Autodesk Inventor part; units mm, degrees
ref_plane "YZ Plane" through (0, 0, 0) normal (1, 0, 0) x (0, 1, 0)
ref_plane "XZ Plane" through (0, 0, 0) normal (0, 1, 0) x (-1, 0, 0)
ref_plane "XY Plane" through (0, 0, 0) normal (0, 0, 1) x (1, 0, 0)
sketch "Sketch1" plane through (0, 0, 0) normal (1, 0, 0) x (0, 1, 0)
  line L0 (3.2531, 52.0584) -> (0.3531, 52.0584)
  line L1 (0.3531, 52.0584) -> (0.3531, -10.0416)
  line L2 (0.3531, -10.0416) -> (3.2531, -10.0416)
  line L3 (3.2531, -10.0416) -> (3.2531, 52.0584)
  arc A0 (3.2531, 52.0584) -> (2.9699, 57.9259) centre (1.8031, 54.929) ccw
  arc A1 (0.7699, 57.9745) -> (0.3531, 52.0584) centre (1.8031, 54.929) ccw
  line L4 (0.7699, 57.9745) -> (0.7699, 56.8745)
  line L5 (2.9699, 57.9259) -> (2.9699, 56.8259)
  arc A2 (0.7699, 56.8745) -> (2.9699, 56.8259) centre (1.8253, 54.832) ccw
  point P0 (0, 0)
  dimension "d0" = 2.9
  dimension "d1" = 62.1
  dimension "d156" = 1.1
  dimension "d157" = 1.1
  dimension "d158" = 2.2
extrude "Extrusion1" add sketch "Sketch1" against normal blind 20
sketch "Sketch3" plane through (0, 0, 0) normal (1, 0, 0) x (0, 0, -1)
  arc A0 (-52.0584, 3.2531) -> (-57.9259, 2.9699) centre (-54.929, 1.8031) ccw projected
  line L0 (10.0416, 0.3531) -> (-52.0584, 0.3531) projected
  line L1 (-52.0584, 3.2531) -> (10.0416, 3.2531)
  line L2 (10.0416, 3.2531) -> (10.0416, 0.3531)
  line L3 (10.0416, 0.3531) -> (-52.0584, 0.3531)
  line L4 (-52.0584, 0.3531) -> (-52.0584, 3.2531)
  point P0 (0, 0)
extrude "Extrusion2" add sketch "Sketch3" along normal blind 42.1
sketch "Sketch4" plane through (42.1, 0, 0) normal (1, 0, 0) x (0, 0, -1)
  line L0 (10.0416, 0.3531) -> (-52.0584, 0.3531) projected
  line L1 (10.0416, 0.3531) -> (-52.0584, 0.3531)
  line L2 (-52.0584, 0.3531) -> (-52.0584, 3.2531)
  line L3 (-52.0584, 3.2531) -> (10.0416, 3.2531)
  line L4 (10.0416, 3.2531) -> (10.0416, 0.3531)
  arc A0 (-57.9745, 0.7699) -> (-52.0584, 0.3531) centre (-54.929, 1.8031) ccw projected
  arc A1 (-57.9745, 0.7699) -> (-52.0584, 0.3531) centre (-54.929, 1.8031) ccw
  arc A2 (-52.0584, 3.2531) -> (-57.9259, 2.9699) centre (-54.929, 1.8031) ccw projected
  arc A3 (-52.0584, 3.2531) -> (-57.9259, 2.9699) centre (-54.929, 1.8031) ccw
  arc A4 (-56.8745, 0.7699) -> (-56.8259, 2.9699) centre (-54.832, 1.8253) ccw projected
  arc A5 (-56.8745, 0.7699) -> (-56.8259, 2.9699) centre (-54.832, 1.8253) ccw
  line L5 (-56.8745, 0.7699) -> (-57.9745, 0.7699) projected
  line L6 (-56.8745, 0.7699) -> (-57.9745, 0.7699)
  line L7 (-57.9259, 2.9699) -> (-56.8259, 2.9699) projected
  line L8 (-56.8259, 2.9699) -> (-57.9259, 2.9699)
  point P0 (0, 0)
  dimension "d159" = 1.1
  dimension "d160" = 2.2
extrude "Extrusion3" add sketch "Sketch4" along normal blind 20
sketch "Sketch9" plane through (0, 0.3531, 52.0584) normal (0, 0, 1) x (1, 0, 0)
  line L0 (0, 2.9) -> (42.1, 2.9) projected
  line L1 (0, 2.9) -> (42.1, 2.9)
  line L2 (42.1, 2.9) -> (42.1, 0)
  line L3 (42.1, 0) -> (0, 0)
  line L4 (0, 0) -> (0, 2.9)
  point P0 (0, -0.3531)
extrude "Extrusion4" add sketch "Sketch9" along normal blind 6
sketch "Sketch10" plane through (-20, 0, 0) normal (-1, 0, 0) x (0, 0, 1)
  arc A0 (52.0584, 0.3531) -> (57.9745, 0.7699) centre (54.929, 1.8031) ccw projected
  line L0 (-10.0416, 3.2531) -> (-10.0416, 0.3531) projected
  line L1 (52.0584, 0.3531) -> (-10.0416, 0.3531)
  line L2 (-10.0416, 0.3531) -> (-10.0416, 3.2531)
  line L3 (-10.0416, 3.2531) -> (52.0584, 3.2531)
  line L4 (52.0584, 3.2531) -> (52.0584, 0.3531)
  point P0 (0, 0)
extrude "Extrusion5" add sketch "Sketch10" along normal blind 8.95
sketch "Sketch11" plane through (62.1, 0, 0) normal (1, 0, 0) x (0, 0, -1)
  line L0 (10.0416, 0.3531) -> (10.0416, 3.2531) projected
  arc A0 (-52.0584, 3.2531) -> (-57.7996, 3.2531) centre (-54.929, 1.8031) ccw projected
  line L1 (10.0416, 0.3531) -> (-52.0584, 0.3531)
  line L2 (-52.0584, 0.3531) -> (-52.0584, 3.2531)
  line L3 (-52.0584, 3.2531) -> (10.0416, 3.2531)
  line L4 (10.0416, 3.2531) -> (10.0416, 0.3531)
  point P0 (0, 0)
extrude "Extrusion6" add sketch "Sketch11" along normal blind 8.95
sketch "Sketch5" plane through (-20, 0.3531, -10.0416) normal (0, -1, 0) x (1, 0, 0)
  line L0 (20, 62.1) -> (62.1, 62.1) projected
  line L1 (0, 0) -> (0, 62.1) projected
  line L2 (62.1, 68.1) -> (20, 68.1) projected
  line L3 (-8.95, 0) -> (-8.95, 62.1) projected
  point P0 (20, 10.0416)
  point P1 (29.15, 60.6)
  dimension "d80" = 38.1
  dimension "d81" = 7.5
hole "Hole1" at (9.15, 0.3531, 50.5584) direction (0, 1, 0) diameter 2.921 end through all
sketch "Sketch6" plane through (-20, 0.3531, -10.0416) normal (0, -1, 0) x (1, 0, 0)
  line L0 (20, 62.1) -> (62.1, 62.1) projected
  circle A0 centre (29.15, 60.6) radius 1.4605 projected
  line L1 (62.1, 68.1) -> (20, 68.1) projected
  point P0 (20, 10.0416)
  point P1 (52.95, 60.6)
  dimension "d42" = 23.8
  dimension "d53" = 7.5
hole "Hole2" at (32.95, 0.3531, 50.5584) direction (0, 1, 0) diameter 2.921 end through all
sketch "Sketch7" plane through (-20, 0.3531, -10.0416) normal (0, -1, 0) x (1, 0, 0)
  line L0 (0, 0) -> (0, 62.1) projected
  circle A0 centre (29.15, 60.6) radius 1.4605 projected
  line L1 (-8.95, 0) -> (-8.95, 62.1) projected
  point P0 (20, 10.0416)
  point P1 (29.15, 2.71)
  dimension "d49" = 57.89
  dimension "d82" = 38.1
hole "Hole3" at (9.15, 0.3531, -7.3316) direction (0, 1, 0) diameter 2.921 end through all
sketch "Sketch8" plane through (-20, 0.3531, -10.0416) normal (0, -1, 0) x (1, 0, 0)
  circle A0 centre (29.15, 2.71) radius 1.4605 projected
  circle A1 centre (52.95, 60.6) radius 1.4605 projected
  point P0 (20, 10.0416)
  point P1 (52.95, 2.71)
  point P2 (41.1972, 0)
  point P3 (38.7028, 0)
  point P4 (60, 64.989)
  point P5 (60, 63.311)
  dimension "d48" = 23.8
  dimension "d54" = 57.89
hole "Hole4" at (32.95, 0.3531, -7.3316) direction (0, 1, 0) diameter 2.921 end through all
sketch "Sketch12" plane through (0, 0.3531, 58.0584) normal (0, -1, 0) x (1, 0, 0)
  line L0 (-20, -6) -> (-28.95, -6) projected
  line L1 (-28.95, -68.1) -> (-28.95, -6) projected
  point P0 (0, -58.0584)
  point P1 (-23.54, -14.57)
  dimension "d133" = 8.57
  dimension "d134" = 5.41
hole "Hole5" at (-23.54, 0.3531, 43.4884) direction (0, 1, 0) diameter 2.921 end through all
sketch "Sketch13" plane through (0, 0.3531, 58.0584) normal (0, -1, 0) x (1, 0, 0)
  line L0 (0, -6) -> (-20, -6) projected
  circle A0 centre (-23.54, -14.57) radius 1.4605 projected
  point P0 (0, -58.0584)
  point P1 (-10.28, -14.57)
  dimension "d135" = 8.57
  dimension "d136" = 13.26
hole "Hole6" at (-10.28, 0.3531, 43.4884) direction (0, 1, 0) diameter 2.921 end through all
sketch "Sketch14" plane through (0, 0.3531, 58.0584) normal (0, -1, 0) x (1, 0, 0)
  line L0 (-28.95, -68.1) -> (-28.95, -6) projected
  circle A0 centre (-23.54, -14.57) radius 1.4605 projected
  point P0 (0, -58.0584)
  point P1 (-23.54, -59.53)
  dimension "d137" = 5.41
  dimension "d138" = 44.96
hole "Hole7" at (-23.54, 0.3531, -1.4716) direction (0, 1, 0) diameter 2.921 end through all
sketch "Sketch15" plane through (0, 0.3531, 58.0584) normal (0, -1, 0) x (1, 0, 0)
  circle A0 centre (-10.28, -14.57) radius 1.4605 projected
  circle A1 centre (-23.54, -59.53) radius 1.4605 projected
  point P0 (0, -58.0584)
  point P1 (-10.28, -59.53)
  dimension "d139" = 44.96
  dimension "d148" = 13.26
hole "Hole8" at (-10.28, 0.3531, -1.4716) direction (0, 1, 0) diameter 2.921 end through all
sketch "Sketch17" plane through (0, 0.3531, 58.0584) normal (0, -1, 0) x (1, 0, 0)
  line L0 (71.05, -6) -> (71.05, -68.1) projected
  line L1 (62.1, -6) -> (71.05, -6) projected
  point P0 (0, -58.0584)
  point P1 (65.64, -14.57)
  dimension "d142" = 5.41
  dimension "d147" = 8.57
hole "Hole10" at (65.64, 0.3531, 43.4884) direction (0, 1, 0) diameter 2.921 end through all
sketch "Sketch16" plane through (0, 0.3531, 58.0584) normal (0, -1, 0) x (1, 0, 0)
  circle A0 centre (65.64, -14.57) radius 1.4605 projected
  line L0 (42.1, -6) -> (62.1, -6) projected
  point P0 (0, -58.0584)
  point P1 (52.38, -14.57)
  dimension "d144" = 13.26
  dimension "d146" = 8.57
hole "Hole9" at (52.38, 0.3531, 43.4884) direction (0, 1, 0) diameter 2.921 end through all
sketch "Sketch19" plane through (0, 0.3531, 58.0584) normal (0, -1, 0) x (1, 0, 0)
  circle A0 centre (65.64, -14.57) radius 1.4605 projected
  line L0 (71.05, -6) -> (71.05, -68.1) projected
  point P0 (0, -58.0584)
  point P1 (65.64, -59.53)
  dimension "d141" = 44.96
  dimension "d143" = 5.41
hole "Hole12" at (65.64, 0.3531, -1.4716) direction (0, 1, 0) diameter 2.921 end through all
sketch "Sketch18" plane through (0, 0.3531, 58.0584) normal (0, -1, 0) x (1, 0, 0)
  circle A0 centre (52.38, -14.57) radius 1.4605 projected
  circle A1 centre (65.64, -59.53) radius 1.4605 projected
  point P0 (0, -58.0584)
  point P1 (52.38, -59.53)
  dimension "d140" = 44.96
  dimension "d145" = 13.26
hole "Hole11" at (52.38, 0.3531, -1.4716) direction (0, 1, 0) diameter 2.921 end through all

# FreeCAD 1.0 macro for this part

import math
import FreeCAD as App
import Part
import Sketcher
from FreeCAD import Vector
Q = App.Units.Quantity


def add_polygon(sketch, points):
    """Adds a closed chain of lines whose ends are joined by coincident constraints."""
    first, n = sketch.GeometryCount, len(points)
    for a, b in zip(points, points[1:] + points[:1]):
        sketch.addGeometry(Part.LineSegment(App.Vector(*a, 0), App.Vector(*b, 0)), False)
    for i in range(n):
        sketch.addConstraint(Sketcher.Constraint("Coincident", first + i, 2, first + (i + 1) % n, 1))

doc = App.newDocument("Part")
params = doc.addObject("Spreadsheet::Sheet", "Params")
for row, (alias, value) in enumerate([
    ("sketch1_width", "2.9 mm"),
    ("sketch1_height", "62.1 mm"),
    ("sketch1_height2", "1.1 mm"),
    ("pad1_length", "20 mm"),
    ("sketch2_width", "2.9 mm"),
    ("sketch2_height", "62.1 mm"),
    ("pad2_length", "42.1 mm"),
    ("sketch3_height", "1.1 mm"),
    ("sketch3_width", "2.9 mm"),
    ("sketch3_height2", "62.1 mm"),
    ("pad3_length", "20 mm"),
    ("sketch4_width", "42.1 mm"),
    ("sketch4_height", "2.9 mm"),
    ("pad4_length", "6 mm"),
    ("sketch5_width", "2.9 mm"),
    ("sketch5_height", "62.1 mm"),
    ("pad5_length", "8.95 mm"),
    ("sketch6_width", "2.9 mm"),
    ("sketch6_height", "62.1 mm"),
    ("pad6_length", "8.95 mm"),
    ("hole_diameter", "2.921 mm"),
    ("hole2_diameter", "2.921 mm"),
    ("hole3_diameter", "2.921 mm"),
    ("hole4_diameter", "2.921 mm"),
    ("hole5_diameter", "2.921 mm"),
    ("hole6_diameter", "2.921 mm"),
    ("hole7_diameter", "2.921 mm"),
    ("hole8_diameter", "2.921 mm"),
    ("hole9_diameter", "2.921 mm"),
    ("hole10_diameter", "2.921 mm"),
    ("hole11_diameter", "2.921 mm"),
    ("hole12_diameter", "2.921 mm"),
], start=1):
    params.set(f"A{row}", alias)
    params.set(f"B{row}", "=" + value)
    params.setAlias(f"B{row}", alias)

body = doc.addObject("PartDesign::Body", "Body")

# Sketch on YZ plane
sketch1 = doc.addObject("Sketcher::SketchObject", "Sketch")
body.addObject(sketch1)
sketch1.AttachmentSupport = (doc.YZ_Plane, [""])
sketch1.MapMode = "FlatFace"
sketch1.addGeometry(Part.LineSegment(Vector(3.2531, -10.0416, 0), Vector(3.2531, 52.0584, 0)), False)
sketch1.addGeometry(Part.ArcOfCircle(Part.Circle(Vector(1.8031, 54.929, 0), Vector(0, 0, 1), 3.216029), math.radians(-63.200706), math.radians(68.727263)), False)
sketch1.addGeometry(Part.LineSegment(Vector(2.9699, 57.9259, 0), Vector(2.9699, 56.8259, 0)), False)
sketch1.addGeometry(Part.ArcOfCircle(Part.Circle(Vector(1.8253, 54.832, 0), Vector(0, 0, 1), 2.29906), math.radians(117.32629), math.radians(420.141984)), False)
sketch1.addGeometry(Part.LineSegment(Vector(0.7699, 56.8745, 0), Vector(0.7699, 57.9745, 0)), False)
sketch1.addGeometry(Part.ArcOfCircle(Part.Circle(Vector(1.8031, 54.929, 0), Vector(0, 0, 1), 3.216029), math.radians(108.739744), math.radians(243.200706)), False)
sketch1.addGeometry(Part.LineSegment(Vector(0.3531, 52.0584, 0), Vector(0.3531, -10.0416, 0)), False)
sketch1.addGeometry(Part.LineSegment(Vector(0.3531, -10.0416, 0), Vector(3.2531, -10.0416, 0)), False)
sketch1.addConstraint(Sketcher.Constraint("Coincident", 0, 2, 1, 1))
sketch1.addConstraint(Sketcher.Constraint("Coincident", 1, 2, 2, 1))
sketch1.addConstraint(Sketcher.Constraint("Coincident", 2, 2, 3, 2))
sketch1.addConstraint(Sketcher.Constraint("Coincident", 3, 1, 4, 1))
sketch1.addConstraint(Sketcher.Constraint("Coincident", 4, 2, 5, 1))
sketch1.addConstraint(Sketcher.Constraint("Coincident", 5, 2, 6, 1))
sketch1.addConstraint(Sketcher.Constraint("Coincident", 6, 2, 7, 1))
sketch1.addConstraint(Sketcher.Constraint("Coincident", 7, 2, 0, 1))
sketch1.addConstraint(Sketcher.Constraint("Vertical", 0))
sketch1.addConstraint(Sketcher.Constraint("Vertical", 2))
sketch1.addConstraint(Sketcher.Constraint("Vertical", 4))
sketch1.addConstraint(Sketcher.Constraint("Vertical", 6))
sketch1.addConstraint(Sketcher.Constraint("Horizontal", 7))
sketch1.addConstraint(Sketcher.Constraint("Coincident", 5, 3, 1, 3))
sketch1.addConstraint(Sketcher.Constraint("Equal", 1, 5))
sketch1.addConstraint(Sketcher.Constraint("Horizontal", 0, 2, 5, 2))
sketch1.addConstraint(Sketcher.Constraint("Equal", 2, 4))
sketch1.addConstraint(Sketcher.Constraint("DistanceX", 7, 1, 7, 2, Q("2.9 mm")))
sketch1.addConstraint(Sketcher.Constraint("DistanceY", 0, 1, 0, 2, Q("62.1 mm")))
sketch1.addConstraint(Sketcher.Constraint("DistanceY", 2, 2, 2, 1, Q("1.1 mm")))
sketch1.addConstraint(Sketcher.Constraint("DistanceX", 3, 1, 2, 2, Q("2.2 mm")))
sketch1.addConstraint(Sketcher.Constraint("Radius", 1, Q("3.216 mm")))
sketch1.addConstraint(Sketcher.Constraint("Radius", 3, Q("2.299 mm")))
sketch1.addConstraint(Sketcher.Constraint("DistanceX", -1, 1, 1, 2, Q("2.97 mm")))
sketch1.addConstraint(Sketcher.Constraint("DistanceX", -1, 1, 1, 3, Q("1.803 mm")))
sketch1.addConstraint(Sketcher.Constraint("DistanceY", -1, 1, 1, 3, Q("54.929 mm")))
sketch1.setExpression("Constraints[17]", "Params.sketch1_width")
sketch1.setExpression("Constraints[18]", "Params.sketch1_height")
sketch1.setExpression("Constraints[19]", "Params.sketch1_height2")
pad1 = doc.addObject("PartDesign::Pad", "Pad")
body.addObject(pad1)
pad1.Profile = sketch1
pad1.setExpression("Length", "Params.pad1_length")
pad1.Reversed = True

# Sketch on YZ plane
sketch2 = doc.addObject("Sketcher::SketchObject", "Sketch001")
body.addObject(sketch2)
sketch2.AttachmentSupport = (doc.YZ_Plane, [""])
sketch2.MapMode = "FlatFace"
add_polygon(sketch2, [(0.3531, 52.0584), (0.3531, -10.0416), (3.2531, -10.0416), (3.2531, 52.0584)])  # lines 0-3
sketch2.addConstraint(Sketcher.Constraint("Vertical", 0))
sketch2.addConstraint(Sketcher.Constraint("Horizontal", 1))
sketch2.addConstraint(Sketcher.Constraint("Vertical", 2))
sketch2.addConstraint(Sketcher.Constraint("Horizontal", 3))
sketch2.addConstraint(Sketcher.Constraint("DistanceX", 1, 1, 1, 2, Q("2.9 mm")))
sketch2.addConstraint(Sketcher.Constraint("DistanceY", 0, 2, 0, 1, Q("62.1 mm")))
sketch2.addConstraint(Sketcher.Constraint("DistanceX", -1, 1, 0, 2, Q("0.353 mm")))
sketch2.addConstraint(Sketcher.Constraint("DistanceY", 0, 2, -1, 1, Q("10.0416 mm")))
sketch2.setExpression("Constraints[8]", "Params.sketch2_width")
sketch2.setExpression("Constraints[9]", "Params.sketch2_height")
pad2 = doc.addObject("PartDesign::Pad", "Pad001")
body.addObject(pad2)
pad2.Profile = sketch2
pad2.setExpression("Length", "Params.pad2_length")

# Sketch on YZ plane
sketch3 = doc.addObject("Sketcher::SketchObject", "Sketch002")
body.addObject(sketch3)
sketch3.AttachmentSupport = (doc.YZ_Plane, [""])
sketch3.MapMode = "FlatFace"
sketch3.AttachmentOffset = App.Placement(Vector(0, 0, 42.1), App.Rotation())
sketch3.addGeometry(Part.LineSegment(Vector(0.3531, 52.0584, 0), Vector(0.3531, -10.0416, 0)), False)
sketch3.addGeometry(Part.LineSegment(Vector(0.3531, -10.0416, 0), Vector(3.2531, -10.0416, 0)), False)
sketch3.addGeometry(Part.LineSegment(Vector(3.2531, -10.0416, 0), Vector(3.2531, 52.0584, 0)), False)
sketch3.addGeometry(Part.ArcOfCircle(Part.Circle(Vector(1.8031, 54.929, 0), Vector(0, 0, 1), 3.216029), math.radians(-63.200706), math.radians(68.727263)), False)
sketch3.addGeometry(Part.LineSegment(Vector(2.9699, 57.9259, 0), Vector(2.9699, 56.8259, 0)), False)
sketch3.addGeometry(Part.ArcOfCircle(Part.Circle(Vector(1.8253, 54.832, 0), Vector(0, 0, 1), 2.29906), math.radians(117.32629), math.radians(420.141984)), False)
sketch3.addGeometry(Part.LineSegment(Vector(0.7699, 56.8745, 0), Vector(0.7699, 57.9745, 0)), False)
sketch3.addGeometry(Part.ArcOfCircle(Part.Circle(Vector(1.8031, 54.929, 0), Vector(0, 0, 1), 3.216029), math.radians(108.739744), math.radians(243.200706)), False)
sketch3.addConstraint(Sketcher.Constraint("Coincident", 0, 2, 1, 1))
sketch3.addConstraint(Sketcher.Constraint("Coincident", 1, 2, 2, 1))
sketch3.addConstraint(Sketcher.Constraint("Coincident", 2, 2, 3, 1))
sketch3.addConstraint(Sketcher.Constraint("Coincident", 3, 2, 4, 1))
sketch3.addConstraint(Sketcher.Constraint("Coincident", 4, 2, 5, 2))
sketch3.addConstraint(Sketcher.Constraint("Coincident", 5, 1, 6, 1))
sketch3.addConstraint(Sketcher.Constraint("Coincident", 6, 2, 7, 1))
sketch3.addConstraint(Sketcher.Constraint("Coincident", 7, 2, 0, 1))
sketch3.addConstraint(Sketcher.Constraint("Vertical", 0))
sketch3.addConstraint(Sketcher.Constraint("Horizontal", 1))
sketch3.addConstraint(Sketcher.Constraint("Vertical", 2))
sketch3.addConstraint(Sketcher.Constraint("Vertical", 4))
sketch3.addConstraint(Sketcher.Constraint("Vertical", 6))
sketch3.addConstraint(Sketcher.Constraint("Coincident", 7, 3, 3, 3))
sketch3.addConstraint(Sketcher.Constraint("Equal", 3, 7))
sketch3.addConstraint(Sketcher.Constraint("Horizontal", 2, 2, 7, 2))
sketch3.addConstraint(Sketcher.Constraint("Equal", 4, 6))
sketch3.addConstraint(Sketcher.Constraint("DistanceY", 4, 2, 4, 1, Q("1.1 mm")))
sketch3.addConstraint(Sketcher.Constraint("DistanceX", 5, 1, 4, 2, Q("2.2 mm")))
sketch3.addConstraint(Sketcher.Constraint("DistanceX", 1, 1, 1, 2, Q("2.9 mm")))
sketch3.addConstraint(Sketcher.Constraint("DistanceY", 0, 2, 0, 1, Q("62.1 mm")))
sketch3.addConstraint(Sketcher.Constraint("Radius", 3, Q("3.216 mm")))
sketch3.addConstraint(Sketcher.Constraint("Radius", 5, Q("2.299 mm")))
sketch3.addConstraint(Sketcher.Constraint("DistanceX", -1, 1, 3, 2, Q("2.97 mm")))
sketch3.addConstraint(Sketcher.Constraint("DistanceX", -1, 1, 3, 3, Q("1.803 mm")))
sketch3.addConstraint(Sketcher.Constraint("DistanceY", -1, 1, 3, 3, Q("54.929 mm")))
sketch3.setExpression("Constraints[17]", "Params.sketch3_height")
sketch3.setExpression("Constraints[19]", "Params.sketch3_width")
sketch3.setExpression("Constraints[20]", "Params.sketch3_height2")
pad3 = doc.addObject("PartDesign::Pad", "Pad002")
body.addObject(pad3)
pad3.Profile = sketch3
pad3.setExpression("Length", "Params.pad3_length")

# Sketch on XY plane
sketch4 = doc.addObject("Sketcher::SketchObject", "Sketch003")
body.addObject(sketch4)
sketch4.AttachmentSupport = (doc.XY_Plane, [""])
sketch4.MapMode = "FlatFace"
sketch4.AttachmentOffset = App.Placement(Vector(0, 0, 52.0584), App.Rotation())
add_polygon(sketch4, [(42.1, 3.2531), (0, 3.2531), (0, 0.3531), (42.1, 0.3531)])  # lines 0-3
sketch4.addConstraint(Sketcher.Constraint("Horizontal", 0))
sketch4.addConstraint(Sketcher.Constraint("Vertical", 1))
sketch4.addConstraint(Sketcher.Constraint("Horizontal", 2))
sketch4.addConstraint(Sketcher.Constraint("Vertical", 3))
sketch4.addConstraint(Sketcher.Constraint("PointOnObject", 0, 2, -2))
sketch4.addConstraint(Sketcher.Constraint("DistanceX", 0, 2, 0, 1, Q("42.1 mm")))
sketch4.addConstraint(Sketcher.Constraint("DistanceY", 1, 2, 1, 1, Q("2.9 mm")))
sketch4.addConstraint(Sketcher.Constraint("DistanceY", -1, 1, 0, 2, Q("3.253 mm")))
sketch4.setExpression("Constraints[9]", "Params.sketch4_width")
sketch4.setExpression("Constraints[10]", "Params.sketch4_height")
pad4 = doc.addObject("PartDesign::Pad", "Pad003")
body.addObject(pad4)
pad4.Profile = sketch4
pad4.setExpression("Length", "Params.pad4_length")

# Sketch on YZ plane
sketch5 = doc.addObject("Sketcher::SketchObject", "Sketch004")
body.addObject(sketch5)
sketch5.AttachmentSupport = (doc.YZ_Plane, [""])
sketch5.MapMode = "FlatFace"
sketch5.AttachmentOffset = App.Placement(Vector(0, 0, -20), App.Rotation())
add_polygon(sketch5, [(3.2531, 52.0584), (3.2531, -10.0416), (0.3531, -10.0416), (0.3531, 52.0584)])  # lines 0-3
sketch5.addConstraint(Sketcher.Constraint("Vertical", 0))
sketch5.addConstraint(Sketcher.Constraint("Horizontal", 1))
sketch5.addConstraint(Sketcher.Constraint("Vertical", 2))
sketch5.addConstraint(Sketcher.Constraint("Horizontal", 3))
sketch5.addConstraint(Sketcher.Constraint("DistanceX", 1, 2, 1, 1, Q("2.9 mm")))
sketch5.addConstraint(Sketcher.Constraint("DistanceY", 0, 2, 0, 1, Q("62.1 mm")))
sketch5.addConstraint(Sketcher.Constraint("DistanceX", -1, 1, 0, 2, Q("3.253 mm")))
sketch5.addConstraint(Sketcher.Constraint("DistanceY", 0, 2, -1, 1, Q("10.0416 mm")))
sketch5.setExpression("Constraints[8]", "Params.sketch5_width")
sketch5.setExpression("Constraints[9]", "Params.sketch5_height")
pad5 = doc.addObject("PartDesign::Pad", "Pad004")
body.addObject(pad5)
pad5.Profile = sketch5
pad5.setExpression("Length", "Params.pad5_length")
pad5.Reversed = True

# Sketch on YZ plane
sketch6 = doc.addObject("Sketcher::SketchObject", "Sketch005")
body.addObject(sketch6)
sketch6.AttachmentSupport = (doc.YZ_Plane, [""])
sketch6.MapMode = "FlatFace"
sketch6.AttachmentOffset = App.Placement(Vector(0, 0, 62.1), App.Rotation())
add_polygon(sketch6, [(0.3531, 52.0584), (0.3531, -10.0416), (3.2531, -10.0416), (3.2531, 52.0584)])  # lines 0-3
sketch6.addConstraint(Sketcher.Constraint("Vertical", 0))
sketch6.addConstraint(Sketcher.Constraint("Horizontal", 1))
sketch6.addConstraint(Sketcher.Constraint("Vertical", 2))
sketch6.addConstraint(Sketcher.Constraint("Horizontal", 3))
sketch6.addConstraint(Sketcher.Constraint("DistanceX", 1, 1, 1, 2, Q("2.9 mm")))
sketch6.addConstraint(Sketcher.Constraint("DistanceY", 0, 2, 0, 1, Q("62.1 mm")))
sketch6.addConstraint(Sketcher.Constraint("DistanceX", -1, 1, 0, 2, Q("0.353 mm")))
sketch6.addConstraint(Sketcher.Constraint("DistanceY", 0, 2, -1, 1, Q("10.0416 mm")))
sketch6.setExpression("Constraints[8]", "Params.sketch6_width")
sketch6.setExpression("Constraints[9]", "Params.sketch6_height")
pad6 = doc.addObject("PartDesign::Pad", "Pad005")
body.addObject(pad6)
pad6.Profile = sketch6
pad6.setExpression("Length", "Params.pad6_length")

# Sketch on XZ plane
sketch7 = doc.addObject("Sketcher::SketchObject", "Sketch006")
body.addObject(sketch7)
sketch7.AttachmentSupport = (doc.XZ_Plane, [""])
sketch7.MapMode = "FlatFace"
sketch7.AttachmentOffset = App.Placement(Vector(0, 0, -0.3531), App.Rotation())
sketch7.addGeometry(Part.Circle(Vector(9.15, 50.5584, 0), Vector(0, 0, 1), 1.4605), False)
sketch7.addConstraint(Sketcher.Constraint("Diameter", 0, Q("2.921 mm")))
sketch7.addConstraint(Sketcher.Constraint("DistanceX", -1, 1, 0, 3, Q("9.15 mm")))
sketch7.addConstraint(Sketcher.Constraint("DistanceY", -1, 1, 0, 3, Q("50.5584 mm")))
doc.recompute()
hole = doc.addObject("PartDesign::Hole", "Hole")
body.addObject(hole)
hole.Profile = sketch7
hole.ThreadType = "None"
hole.setExpression("Diameter", "Params.hole_diameter")
hole.DepthType = "ThroughAll"

# Sketch on XZ plane
sketch8 = doc.addObject("Sketcher::SketchObject", "Sketch007")
body.addObject(sketch8)
sketch8.AttachmentSupport = (doc.XZ_Plane, [""])
sketch8.MapMode = "FlatFace"
sketch8.AttachmentOffset = App.Placement(Vector(0, 0, -0.3531), App.Rotation())
sketch8.addGeometry(Part.Circle(Vector(32.95, 50.5584, 0), Vector(0, 0, 1), 1.4605), False)
sketch8.addConstraint(Sketcher.Constraint("Diameter", 0, Q("2.921 mm")))
sketch8.addConstraint(Sketcher.Constraint("DistanceX", -1, 1, 0, 3, Q("32.95 mm")))
sketch8.addConstraint(Sketcher.Constraint("DistanceY", -1, 1, 0, 3, Q("50.5584 mm")))
doc.recompute()
hole2 = doc.addObject("PartDesign::Hole", "Hole001")
body.addObject(hole2)
hole2.Profile = sketch8
hole2.ThreadType = "None"
hole2.setExpression("Diameter", "Params.hole2_diameter")
hole2.DepthType = "ThroughAll"

# Sketch on XZ plane
sketch9 = doc.addObject("Sketcher::SketchObject", "Sketch008")
body.addObject(sketch9)
sketch9.AttachmentSupport = (doc.XZ_Plane, [""])
sketch9.MapMode = "FlatFace"
sketch9.AttachmentOffset = App.Placement(Vector(0, 0, -0.3531), App.Rotation())
sketch9.addGeometry(Part.Circle(Vector(9.15, -7.3316, 0), Vector(0, 0, 1), 1.4605), False)
sketch9.addConstraint(Sketcher.Constraint("Diameter", 0, Q("2.921 mm")))
sketch9.addConstraint(Sketcher.Constraint("DistanceX", -1, 1, 0, 3, Q("9.15 mm")))
sketch9.addConstraint(Sketcher.Constraint("DistanceY", 0, 3, -1, 1, Q("7.3316 mm")))
doc.recompute()
hole3 = doc.addObject("PartDesign::Hole", "Hole002")
body.addObject(hole3)
hole3.Profile = sketch9
hole3.ThreadType = "None"
hole3.setExpression("Diameter", "Params.hole3_diameter")
hole3.DepthType = "ThroughAll"

# Sketch on XZ plane
sketch10 = doc.addObject("Sketcher::SketchObject", "Sketch009")
body.addObject(sketch10)
sketch10.AttachmentSupport = (doc.XZ_Plane, [""])
sketch10.MapMode = "FlatFace"
sketch10.AttachmentOffset = App.Placement(Vector(0, 0, -0.3531), App.Rotation())
sketch10.addGeometry(Part.Circle(Vector(32.95, -7.3316, 0), Vector(0, 0, 1), 1.4605), False)
sketch10.addConstraint(Sketcher.Constraint("Diameter", 0, Q("2.921 mm")))
sketch10.addConstraint(Sketcher.Constraint("DistanceX", -1, 1, 0, 3, Q("32.95 mm")))
sketch10.addConstraint(Sketcher.Constraint("DistanceY", 0, 3, -1, 1, Q("7.3316 mm")))
doc.recompute()
hole4 = doc.addObject("PartDesign::Hole", "Hole003")
body.addObject(hole4)
hole4.Profile = sketch10
hole4.ThreadType = "None"
hole4.setExpression("Diameter", "Params.hole4_diameter")
hole4.DepthType = "ThroughAll"

# Sketch on XZ plane
sketch11 = doc.addObject("Sketcher::SketchObject", "Sketch010")
body.addObject(sketch11)
sketch11.AttachmentSupport = (doc.XZ_Plane, [""])
sketch11.MapMode = "FlatFace"
sketch11.AttachmentOffset = App.Placement(Vector(0, 0, -0.3531), App.Rotation())
sketch11.addGeometry(Part.Circle(Vector(-23.54, 43.4884, 0), Vector(0, 0, 1), 1.4605), False)
sketch11.addConstraint(Sketcher.Constraint("Diameter", 0, Q("2.921 mm")))
sketch11.addConstraint(Sketcher.Constraint("DistanceX", 0, 3, -1, 1, Q("23.54 mm")))
sketch11.addConstraint(Sketcher.Constraint("DistanceY", -1, 1, 0, 3, Q("43.4884 mm")))
doc.recompute()
hole5 = doc.addObject("PartDesign::Hole", "Hole004")
body.addObject(hole5)
hole5.Profile = sketch11
hole5.ThreadType = "None"
hole5.setExpression("Diameter", "Params.hole5_diameter")
hole5.DepthType = "ThroughAll"

# Sketch on XZ plane
sketch12 = doc.addObject("Sketcher::SketchObject", "Sketch011")
body.addObject(sketch12)
sketch12.AttachmentSupport = (doc.XZ_Plane, [""])
sketch12.MapMode = "FlatFace"
sketch12.AttachmentOffset = App.Placement(Vector(0, 0, -0.3531), App.Rotation())
sketch12.addGeometry(Part.Circle(Vector(-10.28, 43.4884, 0), Vector(0, 0, 1), 1.4605), False)
sketch12.addConstraint(Sketcher.Constraint("Diameter", 0, Q("2.921 mm")))
sketch12.addConstraint(Sketcher.Constraint("DistanceX", 0, 3, -1, 1, Q("10.28 mm")))
sketch12.addConstraint(Sketcher.Constraint("DistanceY", -1, 1, 0, 3, Q("43.4884 mm")))
doc.recompute()
hole6 = doc.addObject("PartDesign::Hole", "Hole005")
body.addObject(hole6)
hole6.Profile = sketch12
hole6.ThreadType = "None"
hole6.setExpression("Diameter", "Params.hole6_diameter")
hole6.DepthType = "ThroughAll"

# Sketch on XZ plane
sketch13 = doc.addObject("Sketcher::SketchObject", "Sketch012")
body.addObject(sketch13)
sketch13.AttachmentSupport = (doc.XZ_Plane, [""])
sketch13.MapMode = "FlatFace"
sketch13.AttachmentOffset = App.Placement(Vector(0, 0, -0.3531), App.Rotation())
sketch13.addGeometry(Part.Circle(Vector(-23.54, -1.4716, 0), Vector(0, 0, 1), 1.4605), False)
sketch13.addConstraint(Sketcher.Constraint("Diameter", 0, Q("2.921 mm")))
sketch13.addConstraint(Sketcher.Constraint("DistanceX", 0, 3, -1, 1, Q("23.54 mm")))
sketch13.addConstraint(Sketcher.Constraint("DistanceY", 0, 3, -1, 1, Q("1.4716 mm")))
doc.recompute()
hole7 = doc.addObject("PartDesign::Hole", "Hole006")
body.addObject(hole7)
hole7.Profile = sketch13
hole7.ThreadType = "None"
hole7.setExpression("Diameter", "Params.hole7_diameter")
hole7.DepthType = "ThroughAll"

# Sketch on XZ plane
sketch14 = doc.addObject("Sketcher::SketchObject", "Sketch013")
body.addObject(sketch14)
sketch14.AttachmentSupport = (doc.XZ_Plane, [""])
sketch14.MapMode = "FlatFace"
sketch14.AttachmentOffset = App.Placement(Vector(0, 0, -0.3531), App.Rotation())
sketch14.addGeometry(Part.Circle(Vector(-10.28, -1.4716, 0), Vector(0, 0, 1), 1.4605), False)
sketch14.addConstraint(Sketcher.Constraint("Diameter", 0, Q("2.921 mm")))
sketch14.addConstraint(Sketcher.Constraint("DistanceX", 0, 3, -1, 1, Q("10.28 mm")))
sketch14.addConstraint(Sketcher.Constraint("DistanceY", 0, 3, -1, 1, Q("1.4716 mm")))
doc.recompute()
hole8 = doc.addObject("PartDesign::Hole", "Hole007")
body.addObject(hole8)
hole8.Profile = sketch14
hole8.ThreadType = "None"
hole8.setExpression("Diameter", "Params.hole8_diameter")
hole8.DepthType = "ThroughAll"

# Sketch on XZ plane
sketch15 = doc.addObject("Sketcher::SketchObject", "Sketch014")
body.addObject(sketch15)
sketch15.AttachmentSupport = (doc.XZ_Plane, [""])
sketch15.MapMode = "FlatFace"
sketch15.AttachmentOffset = App.Placement(Vector(0, 0, -0.3531), App.Rotation())
sketch15.addGeometry(Part.Circle(Vector(65.64, 43.4884, 0), Vector(0, 0, 1), 1.4605), False)
sketch15.addConstraint(Sketcher.Constraint("Diameter", 0, Q("2.921 mm")))
sketch15.addConstraint(Sketcher.Constraint("DistanceX", -1, 1, 0, 3, Q("65.64 mm")))
sketch15.addConstraint(Sketcher.Constraint("DistanceY", -1, 1, 0, 3, Q("43.4884 mm")))
doc.recompute()
hole9 = doc.addObject("PartDesign::Hole", "Hole008")
body.addObject(hole9)
hole9.Profile = sketch15
hole9.ThreadType = "None"
hole9.setExpression("Diameter", "Params.hole9_diameter")
hole9.DepthType = "ThroughAll"

# Sketch on XZ plane
sketch16 = doc.addObject("Sketcher::SketchObject", "Sketch015")
body.addObject(sketch16)
sketch16.AttachmentSupport = (doc.XZ_Plane, [""])
sketch16.MapMode = "FlatFace"
sketch16.AttachmentOffset = App.Placement(Vector(0, 0, -0.3531), App.Rotation())
sketch16.addGeometry(Part.Circle(Vector(52.38, 43.4884, 0), Vector(0, 0, 1), 1.4605), False)
sketch16.addConstraint(Sketcher.Constraint("Diameter", 0, Q("2.921 mm")))
sketch16.addConstraint(Sketcher.Constraint("DistanceX", -1, 1, 0, 3, Q("52.38 mm")))
sketch16.addConstraint(Sketcher.Constraint("DistanceY", -1, 1, 0, 3, Q("43.4884 mm")))
doc.recompute()
hole10 = doc.addObject("PartDesign::Hole", "Hole009")
body.addObject(hole10)
hole10.Profile = sketch16
hole10.ThreadType = "None"
hole10.setExpression("Diameter", "Params.hole10_diameter")
hole10.DepthType = "ThroughAll"

# Sketch on XZ plane
sketch17 = doc.addObject("Sketcher::SketchObject", "Sketch016")
body.addObject(sketch17)
sketch17.AttachmentSupport = (doc.XZ_Plane, [""])
sketch17.MapMode = "FlatFace"
sketch17.AttachmentOffset = App.Placement(Vector(0, 0, -0.3531), App.Rotation())
sketch17.addGeometry(Part.Circle(Vector(65.64, -1.4716, 0), Vector(0, 0, 1), 1.4605), False)
sketch17.addConstraint(Sketcher.Constraint("Diameter", 0, Q("2.921 mm")))
sketch17.addConstraint(Sketcher.Constraint("DistanceX", -1, 1, 0, 3, Q("65.64 mm")))
sketch17.addConstraint(Sketcher.Constraint("DistanceY", 0, 3, -1, 1, Q("1.4716 mm")))
doc.recompute()
hole11 = doc.addObject("PartDesign::Hole", "Hole010")
body.addObject(hole11)
hole11.Profile = sketch17
hole11.ThreadType = "None"
hole11.setExpression("Diameter", "Params.hole11_diameter")
hole11.DepthType = "ThroughAll"

# Sketch on XZ plane
sketch18 = doc.addObject("Sketcher::SketchObject", "Sketch017")
body.addObject(sketch18)
sketch18.AttachmentSupport = (doc.XZ_Plane, [""])
sketch18.MapMode = "FlatFace"
sketch18.AttachmentOffset = App.Placement(Vector(0, 0, -0.3531), App.Rotation())
sketch18.addGeometry(Part.Circle(Vector(52.38, -1.4716, 0), Vector(0, 0, 1), 1.4605), False)
sketch18.addConstraint(Sketcher.Constraint("Diameter", 0, Q("2.921 mm")))
sketch18.addConstraint(Sketcher.Constraint("DistanceX", -1, 1, 0, 3, Q("52.38 mm")))
sketch18.addConstraint(Sketcher.Constraint("DistanceY", 0, 3, -1, 1, Q("1.4716 mm")))
doc.recompute()
hole12 = doc.addObject("PartDesign::Hole", "Hole011")
body.addObject(hole12)
hole12.Profile = sketch18
hole12.ThreadType = "None"
hole12.setExpression("Diameter", "Params.hole12_diameter")
hole12.DepthType = "ThroughAll"

doc.recompute()
